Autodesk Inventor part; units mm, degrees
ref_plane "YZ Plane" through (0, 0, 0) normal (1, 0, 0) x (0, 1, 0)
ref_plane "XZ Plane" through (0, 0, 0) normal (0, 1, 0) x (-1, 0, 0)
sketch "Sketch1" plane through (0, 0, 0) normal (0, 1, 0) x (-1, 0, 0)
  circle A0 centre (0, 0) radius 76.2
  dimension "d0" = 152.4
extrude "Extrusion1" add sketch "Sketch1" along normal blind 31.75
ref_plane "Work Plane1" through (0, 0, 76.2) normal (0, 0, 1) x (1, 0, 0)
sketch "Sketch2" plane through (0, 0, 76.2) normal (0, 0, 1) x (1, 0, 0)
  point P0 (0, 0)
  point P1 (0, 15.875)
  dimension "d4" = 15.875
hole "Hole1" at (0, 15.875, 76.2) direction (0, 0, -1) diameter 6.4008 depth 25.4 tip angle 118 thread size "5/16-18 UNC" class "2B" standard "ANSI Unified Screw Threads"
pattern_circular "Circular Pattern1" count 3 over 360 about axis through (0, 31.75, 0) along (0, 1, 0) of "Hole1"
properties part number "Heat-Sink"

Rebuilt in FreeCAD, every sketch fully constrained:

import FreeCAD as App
import Part
import Sketcher
from FreeCAD import Vector
Q = App.Units.Quantity

doc = App.newDocument("Part")
body = doc.addObject("PartDesign::Body", "Body")

# Sketch on XZ plane
sketch1 = body.newObject("Sketcher::SketchObject", "Sketch")
sketch1.AttachmentSupport = (doc.getObject("XZ_Plane"), [""])
sketch1.MapMode = "FlatFace"
sketch1.addGeometry(Part.Circle(Vector(0, 0, 0), Vector(0, 0, 1), 76.2), False)
sketch1.addConstraint(Sketcher.Constraint("Coincident", 0, 3, -1, 1))
sketch1.addConstraint(Sketcher.Constraint("Diameter", 0, Q("6 in")))
pad1 = body.newObject("PartDesign::Pad", "Pad")
pad1.Profile = sketch1
pad1.Length = Q("1.25 in")
pad1.Reversed = True

# Sketch on XY plane
sketch2 = body.newObject("Sketcher::SketchObject", "Sketch001")
sketch2.AttachmentSupport = (doc.getObject("XY_Plane"), [""])
sketch2.MapMode = "FlatFace"
sketch2.AttachmentOffset = App.Placement(Vector(0, 0, 3 * 25.4), App.Rotation())
sketch2.addGeometry(Part.Circle(Vector(0, 15.875, 0), Vector(0, 0, 1), 3.2004), False)
sketch2.addConstraint(Sketcher.Constraint("PointOnObject", 0, 3, -2))
sketch2.addConstraint(Sketcher.Constraint("Diameter", 0, Q("0.252 in")))
sketch2.addConstraint(Sketcher.Constraint("DistanceY", -1, 1, 0, 3, Q("0.625 in")))
doc.recompute()
hole = body.newObject("PartDesign::Hole", "Hole")
hole.Profile = sketch2
hole.ThreadType = "None"
hole.Diameter = Q("0.252 in")
hole.DepthType = "Dimension"
hole.Depth = Q("1 in")
hole.DrillPoint = "Angled"
hole.DrillPointAngle = 118
doc.recompute()

polarpattern = body.newObject("PartDesign::PolarPattern", "PolarPattern")
polarpattern.Originals = [hole]
polarpattern.Axis = (doc.getObject("Y_Axis"), [""])
polarpattern.Angle = 360
polarpattern.Occurrences = 3
body.Tip = polarpattern

doc.recompute()
